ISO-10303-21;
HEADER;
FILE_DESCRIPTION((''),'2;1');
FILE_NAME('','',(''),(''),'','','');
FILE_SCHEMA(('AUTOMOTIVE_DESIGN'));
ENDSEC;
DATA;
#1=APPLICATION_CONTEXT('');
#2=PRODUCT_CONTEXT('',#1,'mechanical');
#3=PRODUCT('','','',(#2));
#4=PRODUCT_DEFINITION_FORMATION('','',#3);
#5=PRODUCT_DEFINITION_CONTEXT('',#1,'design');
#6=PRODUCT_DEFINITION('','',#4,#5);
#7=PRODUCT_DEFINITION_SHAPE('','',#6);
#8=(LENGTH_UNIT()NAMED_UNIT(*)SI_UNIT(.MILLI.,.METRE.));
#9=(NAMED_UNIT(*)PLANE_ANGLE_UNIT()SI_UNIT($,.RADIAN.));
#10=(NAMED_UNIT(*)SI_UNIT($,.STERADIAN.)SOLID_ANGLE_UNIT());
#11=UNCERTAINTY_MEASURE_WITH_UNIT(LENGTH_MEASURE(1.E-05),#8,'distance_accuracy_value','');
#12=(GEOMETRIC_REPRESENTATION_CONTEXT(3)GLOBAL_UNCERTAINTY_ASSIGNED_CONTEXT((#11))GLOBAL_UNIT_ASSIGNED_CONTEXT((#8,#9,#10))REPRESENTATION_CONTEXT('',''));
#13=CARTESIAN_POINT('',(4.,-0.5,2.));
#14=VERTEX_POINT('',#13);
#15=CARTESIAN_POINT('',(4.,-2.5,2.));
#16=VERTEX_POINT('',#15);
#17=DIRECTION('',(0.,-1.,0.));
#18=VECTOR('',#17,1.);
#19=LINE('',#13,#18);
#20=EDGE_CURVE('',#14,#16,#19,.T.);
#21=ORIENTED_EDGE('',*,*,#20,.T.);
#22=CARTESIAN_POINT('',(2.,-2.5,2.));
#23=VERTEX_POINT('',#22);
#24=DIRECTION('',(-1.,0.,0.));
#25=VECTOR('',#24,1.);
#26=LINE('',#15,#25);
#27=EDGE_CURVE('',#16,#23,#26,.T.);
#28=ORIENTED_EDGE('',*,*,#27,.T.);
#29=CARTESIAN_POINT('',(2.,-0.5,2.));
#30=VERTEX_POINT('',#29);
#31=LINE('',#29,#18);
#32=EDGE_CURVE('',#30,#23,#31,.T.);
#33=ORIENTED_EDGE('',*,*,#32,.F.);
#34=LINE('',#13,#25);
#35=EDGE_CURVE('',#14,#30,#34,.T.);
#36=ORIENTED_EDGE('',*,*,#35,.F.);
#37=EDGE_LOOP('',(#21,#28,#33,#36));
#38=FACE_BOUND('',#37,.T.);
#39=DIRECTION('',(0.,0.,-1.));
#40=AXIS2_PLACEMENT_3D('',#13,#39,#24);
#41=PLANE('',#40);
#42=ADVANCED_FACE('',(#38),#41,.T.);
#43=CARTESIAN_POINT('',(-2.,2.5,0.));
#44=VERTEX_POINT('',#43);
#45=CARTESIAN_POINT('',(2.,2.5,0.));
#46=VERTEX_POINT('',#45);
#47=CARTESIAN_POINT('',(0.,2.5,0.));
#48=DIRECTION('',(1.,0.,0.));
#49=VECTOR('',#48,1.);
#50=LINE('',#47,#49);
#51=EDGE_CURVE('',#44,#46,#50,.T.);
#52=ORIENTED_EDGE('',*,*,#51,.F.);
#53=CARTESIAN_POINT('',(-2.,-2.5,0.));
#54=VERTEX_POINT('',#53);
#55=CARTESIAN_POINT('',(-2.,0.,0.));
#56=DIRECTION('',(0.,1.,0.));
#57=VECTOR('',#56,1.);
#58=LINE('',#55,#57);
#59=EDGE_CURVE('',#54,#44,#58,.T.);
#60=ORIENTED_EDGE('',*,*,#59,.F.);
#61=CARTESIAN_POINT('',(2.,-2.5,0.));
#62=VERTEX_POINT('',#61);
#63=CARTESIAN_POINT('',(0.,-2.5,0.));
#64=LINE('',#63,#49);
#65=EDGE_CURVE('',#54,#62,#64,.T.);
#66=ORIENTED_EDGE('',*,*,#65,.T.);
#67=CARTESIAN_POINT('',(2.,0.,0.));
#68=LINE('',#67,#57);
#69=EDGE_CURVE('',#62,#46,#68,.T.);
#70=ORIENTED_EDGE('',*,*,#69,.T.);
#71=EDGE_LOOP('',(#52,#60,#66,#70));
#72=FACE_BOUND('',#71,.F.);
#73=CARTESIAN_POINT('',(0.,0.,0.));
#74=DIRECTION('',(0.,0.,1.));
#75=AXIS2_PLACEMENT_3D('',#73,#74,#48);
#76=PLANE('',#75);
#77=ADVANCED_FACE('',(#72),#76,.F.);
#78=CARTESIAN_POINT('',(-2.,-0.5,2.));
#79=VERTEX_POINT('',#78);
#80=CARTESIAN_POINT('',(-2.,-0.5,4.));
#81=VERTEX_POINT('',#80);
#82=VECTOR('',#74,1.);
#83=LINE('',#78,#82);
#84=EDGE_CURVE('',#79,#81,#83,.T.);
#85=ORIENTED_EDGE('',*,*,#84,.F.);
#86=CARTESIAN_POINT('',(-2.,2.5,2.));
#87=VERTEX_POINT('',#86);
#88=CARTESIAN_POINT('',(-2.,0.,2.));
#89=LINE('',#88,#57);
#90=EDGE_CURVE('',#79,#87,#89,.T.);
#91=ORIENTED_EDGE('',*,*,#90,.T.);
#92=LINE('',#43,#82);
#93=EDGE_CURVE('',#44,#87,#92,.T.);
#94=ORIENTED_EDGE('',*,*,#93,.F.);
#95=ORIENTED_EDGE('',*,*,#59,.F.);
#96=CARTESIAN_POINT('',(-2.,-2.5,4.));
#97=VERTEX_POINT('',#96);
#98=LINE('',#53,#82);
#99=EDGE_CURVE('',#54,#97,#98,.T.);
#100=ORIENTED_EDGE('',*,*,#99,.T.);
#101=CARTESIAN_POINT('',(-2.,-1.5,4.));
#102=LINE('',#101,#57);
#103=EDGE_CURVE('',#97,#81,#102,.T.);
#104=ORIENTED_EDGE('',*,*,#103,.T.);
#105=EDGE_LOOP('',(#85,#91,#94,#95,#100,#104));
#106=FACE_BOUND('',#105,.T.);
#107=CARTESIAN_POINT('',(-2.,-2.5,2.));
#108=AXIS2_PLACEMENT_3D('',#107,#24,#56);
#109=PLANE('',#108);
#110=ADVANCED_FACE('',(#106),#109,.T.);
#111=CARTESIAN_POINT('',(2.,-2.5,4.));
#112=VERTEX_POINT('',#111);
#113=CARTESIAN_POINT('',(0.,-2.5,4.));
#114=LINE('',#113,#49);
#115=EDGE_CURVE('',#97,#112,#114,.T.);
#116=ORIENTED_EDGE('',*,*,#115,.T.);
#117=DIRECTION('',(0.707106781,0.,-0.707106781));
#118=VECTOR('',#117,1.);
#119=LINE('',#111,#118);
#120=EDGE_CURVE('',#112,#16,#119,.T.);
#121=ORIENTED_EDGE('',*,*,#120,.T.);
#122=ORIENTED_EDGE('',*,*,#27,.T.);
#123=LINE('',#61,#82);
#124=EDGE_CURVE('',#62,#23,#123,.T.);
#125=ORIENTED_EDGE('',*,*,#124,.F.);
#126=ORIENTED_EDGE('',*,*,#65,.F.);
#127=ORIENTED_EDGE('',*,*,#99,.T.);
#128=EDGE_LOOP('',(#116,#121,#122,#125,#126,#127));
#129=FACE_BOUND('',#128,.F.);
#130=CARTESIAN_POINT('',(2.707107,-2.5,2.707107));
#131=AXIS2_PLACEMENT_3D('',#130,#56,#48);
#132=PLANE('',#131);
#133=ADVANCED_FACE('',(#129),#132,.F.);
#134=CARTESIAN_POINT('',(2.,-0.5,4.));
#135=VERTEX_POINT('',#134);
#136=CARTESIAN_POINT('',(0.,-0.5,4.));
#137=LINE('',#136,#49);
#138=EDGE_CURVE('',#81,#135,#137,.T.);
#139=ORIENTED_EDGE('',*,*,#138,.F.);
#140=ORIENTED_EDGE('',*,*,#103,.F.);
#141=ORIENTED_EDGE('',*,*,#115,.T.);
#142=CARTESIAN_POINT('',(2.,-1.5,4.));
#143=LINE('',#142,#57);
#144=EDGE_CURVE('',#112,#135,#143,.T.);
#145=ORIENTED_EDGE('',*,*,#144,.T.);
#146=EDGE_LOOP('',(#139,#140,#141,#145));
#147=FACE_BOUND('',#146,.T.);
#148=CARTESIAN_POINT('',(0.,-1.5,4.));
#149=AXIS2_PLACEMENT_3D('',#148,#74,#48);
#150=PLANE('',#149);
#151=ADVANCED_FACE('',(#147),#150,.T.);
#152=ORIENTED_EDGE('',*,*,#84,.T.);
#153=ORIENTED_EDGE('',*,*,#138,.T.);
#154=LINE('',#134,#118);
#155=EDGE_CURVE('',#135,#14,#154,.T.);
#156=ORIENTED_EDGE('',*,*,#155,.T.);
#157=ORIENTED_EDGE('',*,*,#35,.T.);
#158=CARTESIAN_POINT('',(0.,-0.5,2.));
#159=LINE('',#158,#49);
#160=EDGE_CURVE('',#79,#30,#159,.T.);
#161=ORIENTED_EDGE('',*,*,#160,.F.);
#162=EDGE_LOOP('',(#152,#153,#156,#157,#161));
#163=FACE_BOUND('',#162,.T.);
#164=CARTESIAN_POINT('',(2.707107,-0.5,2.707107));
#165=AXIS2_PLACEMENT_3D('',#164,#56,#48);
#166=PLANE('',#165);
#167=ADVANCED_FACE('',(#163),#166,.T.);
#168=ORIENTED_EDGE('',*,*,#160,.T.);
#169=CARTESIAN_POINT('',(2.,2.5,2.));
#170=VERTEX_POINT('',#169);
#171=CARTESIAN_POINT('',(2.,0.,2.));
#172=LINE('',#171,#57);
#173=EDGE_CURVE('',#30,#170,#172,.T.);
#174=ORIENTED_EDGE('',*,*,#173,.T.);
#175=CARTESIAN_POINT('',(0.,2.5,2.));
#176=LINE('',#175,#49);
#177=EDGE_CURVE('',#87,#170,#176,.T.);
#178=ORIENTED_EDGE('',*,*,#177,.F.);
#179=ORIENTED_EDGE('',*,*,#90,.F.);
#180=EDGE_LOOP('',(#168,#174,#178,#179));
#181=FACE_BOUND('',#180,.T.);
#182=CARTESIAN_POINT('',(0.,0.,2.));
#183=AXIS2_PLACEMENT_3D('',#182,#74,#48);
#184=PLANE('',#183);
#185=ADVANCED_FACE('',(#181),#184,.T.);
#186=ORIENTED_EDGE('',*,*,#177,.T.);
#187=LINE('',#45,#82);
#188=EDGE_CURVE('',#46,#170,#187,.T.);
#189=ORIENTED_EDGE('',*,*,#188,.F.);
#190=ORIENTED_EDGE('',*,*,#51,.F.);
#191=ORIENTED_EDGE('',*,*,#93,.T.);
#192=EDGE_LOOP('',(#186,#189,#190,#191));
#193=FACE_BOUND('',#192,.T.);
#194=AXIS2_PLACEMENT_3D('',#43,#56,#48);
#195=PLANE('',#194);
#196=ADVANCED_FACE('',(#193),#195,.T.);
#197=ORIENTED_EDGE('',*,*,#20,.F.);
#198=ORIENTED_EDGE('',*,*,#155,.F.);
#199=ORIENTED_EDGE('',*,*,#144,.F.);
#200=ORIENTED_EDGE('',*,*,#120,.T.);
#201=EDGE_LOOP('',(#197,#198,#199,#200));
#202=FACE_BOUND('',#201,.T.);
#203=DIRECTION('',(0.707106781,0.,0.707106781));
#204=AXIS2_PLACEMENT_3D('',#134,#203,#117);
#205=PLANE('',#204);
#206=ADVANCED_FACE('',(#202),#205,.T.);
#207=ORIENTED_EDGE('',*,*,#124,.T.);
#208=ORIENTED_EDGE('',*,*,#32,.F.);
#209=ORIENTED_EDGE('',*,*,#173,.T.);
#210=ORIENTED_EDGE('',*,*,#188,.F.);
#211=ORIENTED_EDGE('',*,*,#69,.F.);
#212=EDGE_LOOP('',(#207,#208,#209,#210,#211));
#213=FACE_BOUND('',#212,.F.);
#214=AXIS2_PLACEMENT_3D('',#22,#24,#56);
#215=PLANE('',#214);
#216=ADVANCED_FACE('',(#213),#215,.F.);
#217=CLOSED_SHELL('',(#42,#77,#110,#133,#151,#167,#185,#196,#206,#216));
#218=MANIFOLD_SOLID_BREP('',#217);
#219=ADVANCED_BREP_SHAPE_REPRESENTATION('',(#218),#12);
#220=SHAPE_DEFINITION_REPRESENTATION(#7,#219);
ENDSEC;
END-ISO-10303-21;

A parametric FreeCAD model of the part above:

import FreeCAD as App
import Part
import Sketcher

V = App.Vector
Q = App.Units.Quantity


def add_polygon(sketch, points):
    """Adds a closed chain of lines whose ends are joined by coincident constraints."""
    first, n = sketch.GeometryCount, len(points)
    for a, b in zip(points, points[1:] + points[:1]):
        sketch.addGeometry(Part.LineSegment(App.Vector(*a, 0), App.Vector(*b, 0)), False)
    for i in range(n):
        sketch.addConstraint(Sketcher.Constraint("Coincident", first + i, 2, first + (i + 1) % n, 1))

doc = App.newDocument("Part")
body = doc.addObject("PartDesign::Body", "Body")

sketch1 = body.newObject("Sketcher::SketchObject", "Sketch")
sketch1.AttachmentSupport = (doc.getObject("XY_Plane"), [""])
sketch1.MapMode = "FlatFace"
add_polygon(sketch1, [(-2, 2.5), (-2, -2.5), (2, -2.5), (2, 2.5)])
sketch1.addConstraint([
    Sketcher.Constraint("Vertical", 0),
    Sketcher.Constraint("Horizontal", 1),
    Sketcher.Constraint("Vertical", 2),
    Sketcher.Constraint("Horizontal", 3),
    Sketcher.Constraint("Symmetric", 0, 2, 2, 2, -1, 1),
    Sketcher.Constraint("DistanceX", 1, 1, 1, 2, Q("4 mm")),
    Sketcher.Constraint("DistanceY", 0, 2, 0, 1, Q("5 mm")),
])
pad1 = body.newObject("PartDesign::Pad", "Pad")
pad1.Profile = sketch1
pad1.Length = 2

sketch2 = body.newObject("Sketcher::SketchObject", "Sketch001")
sketch2.AttachmentSupport = (doc.getObject("XY_Plane"), [""])
sketch2.MapMode = "FlatFace"
sketch2.AttachmentOffset = App.Placement(V(0, 0, 2), App.Rotation())
add_polygon(sketch2, [(-2, -0.5), (-2, -2.5), (2, -2.5), (2, -0.5)])
sketch2.addConstraint([
    Sketcher.Constraint("Vertical", 0),
    Sketcher.Constraint("Horizontal", 1),
    Sketcher.Constraint("Vertical", 2),
    Sketcher.Constraint("Horizontal", 3),
    Sketcher.Constraint("DistanceX", 1, 1, 1, 2, Q("4 mm")),
    Sketcher.Constraint("DistanceY", 0, 2, 0, 1, Q("2 mm")),
    Sketcher.Constraint("DistanceX", 0, 2, -1, 1, Q("2 mm")),
    Sketcher.Constraint("DistanceY", 0, 2, -1, 1, Q("2.5 mm")),
])
pad2 = body.newObject("PartDesign::Pad", "Pad001")
pad2.Profile = sketch2
pad2.Length = 2

sketch3 = body.newObject("Sketcher::SketchObject", "Sketch002")
sketch3.AttachmentSupport = (doc.getObject("XZ_Plane"), [""])
sketch3.MapMode = "FlatFace"
sketch3.AttachmentOffset = App.Placement(V(0, 0, 0.5), App.Rotation())
add_polygon(sketch3, [(2, 4), (4, 2), (2, 2)])
sketch3.addConstraint([
    Sketcher.Constraint("Horizontal", 1),
    Sketcher.Constraint("Vertical", 2),
    Sketcher.Constraint("Equal", 1, 2),
    Sketcher.Constraint("DistanceX", 1, 2, 1, 1, Q("2 mm")),
    Sketcher.Constraint("DistanceX", -1, 1, 0, 2, Q("4 mm")),
    Sketcher.Constraint("DistanceY", -1, 1, 0, 2, Q("2 mm")),
])
pad3 = body.newObject("PartDesign::Pad", "Pad002")
pad3.Profile = sketch3
pad3.Length = 2

doc.recompute()
